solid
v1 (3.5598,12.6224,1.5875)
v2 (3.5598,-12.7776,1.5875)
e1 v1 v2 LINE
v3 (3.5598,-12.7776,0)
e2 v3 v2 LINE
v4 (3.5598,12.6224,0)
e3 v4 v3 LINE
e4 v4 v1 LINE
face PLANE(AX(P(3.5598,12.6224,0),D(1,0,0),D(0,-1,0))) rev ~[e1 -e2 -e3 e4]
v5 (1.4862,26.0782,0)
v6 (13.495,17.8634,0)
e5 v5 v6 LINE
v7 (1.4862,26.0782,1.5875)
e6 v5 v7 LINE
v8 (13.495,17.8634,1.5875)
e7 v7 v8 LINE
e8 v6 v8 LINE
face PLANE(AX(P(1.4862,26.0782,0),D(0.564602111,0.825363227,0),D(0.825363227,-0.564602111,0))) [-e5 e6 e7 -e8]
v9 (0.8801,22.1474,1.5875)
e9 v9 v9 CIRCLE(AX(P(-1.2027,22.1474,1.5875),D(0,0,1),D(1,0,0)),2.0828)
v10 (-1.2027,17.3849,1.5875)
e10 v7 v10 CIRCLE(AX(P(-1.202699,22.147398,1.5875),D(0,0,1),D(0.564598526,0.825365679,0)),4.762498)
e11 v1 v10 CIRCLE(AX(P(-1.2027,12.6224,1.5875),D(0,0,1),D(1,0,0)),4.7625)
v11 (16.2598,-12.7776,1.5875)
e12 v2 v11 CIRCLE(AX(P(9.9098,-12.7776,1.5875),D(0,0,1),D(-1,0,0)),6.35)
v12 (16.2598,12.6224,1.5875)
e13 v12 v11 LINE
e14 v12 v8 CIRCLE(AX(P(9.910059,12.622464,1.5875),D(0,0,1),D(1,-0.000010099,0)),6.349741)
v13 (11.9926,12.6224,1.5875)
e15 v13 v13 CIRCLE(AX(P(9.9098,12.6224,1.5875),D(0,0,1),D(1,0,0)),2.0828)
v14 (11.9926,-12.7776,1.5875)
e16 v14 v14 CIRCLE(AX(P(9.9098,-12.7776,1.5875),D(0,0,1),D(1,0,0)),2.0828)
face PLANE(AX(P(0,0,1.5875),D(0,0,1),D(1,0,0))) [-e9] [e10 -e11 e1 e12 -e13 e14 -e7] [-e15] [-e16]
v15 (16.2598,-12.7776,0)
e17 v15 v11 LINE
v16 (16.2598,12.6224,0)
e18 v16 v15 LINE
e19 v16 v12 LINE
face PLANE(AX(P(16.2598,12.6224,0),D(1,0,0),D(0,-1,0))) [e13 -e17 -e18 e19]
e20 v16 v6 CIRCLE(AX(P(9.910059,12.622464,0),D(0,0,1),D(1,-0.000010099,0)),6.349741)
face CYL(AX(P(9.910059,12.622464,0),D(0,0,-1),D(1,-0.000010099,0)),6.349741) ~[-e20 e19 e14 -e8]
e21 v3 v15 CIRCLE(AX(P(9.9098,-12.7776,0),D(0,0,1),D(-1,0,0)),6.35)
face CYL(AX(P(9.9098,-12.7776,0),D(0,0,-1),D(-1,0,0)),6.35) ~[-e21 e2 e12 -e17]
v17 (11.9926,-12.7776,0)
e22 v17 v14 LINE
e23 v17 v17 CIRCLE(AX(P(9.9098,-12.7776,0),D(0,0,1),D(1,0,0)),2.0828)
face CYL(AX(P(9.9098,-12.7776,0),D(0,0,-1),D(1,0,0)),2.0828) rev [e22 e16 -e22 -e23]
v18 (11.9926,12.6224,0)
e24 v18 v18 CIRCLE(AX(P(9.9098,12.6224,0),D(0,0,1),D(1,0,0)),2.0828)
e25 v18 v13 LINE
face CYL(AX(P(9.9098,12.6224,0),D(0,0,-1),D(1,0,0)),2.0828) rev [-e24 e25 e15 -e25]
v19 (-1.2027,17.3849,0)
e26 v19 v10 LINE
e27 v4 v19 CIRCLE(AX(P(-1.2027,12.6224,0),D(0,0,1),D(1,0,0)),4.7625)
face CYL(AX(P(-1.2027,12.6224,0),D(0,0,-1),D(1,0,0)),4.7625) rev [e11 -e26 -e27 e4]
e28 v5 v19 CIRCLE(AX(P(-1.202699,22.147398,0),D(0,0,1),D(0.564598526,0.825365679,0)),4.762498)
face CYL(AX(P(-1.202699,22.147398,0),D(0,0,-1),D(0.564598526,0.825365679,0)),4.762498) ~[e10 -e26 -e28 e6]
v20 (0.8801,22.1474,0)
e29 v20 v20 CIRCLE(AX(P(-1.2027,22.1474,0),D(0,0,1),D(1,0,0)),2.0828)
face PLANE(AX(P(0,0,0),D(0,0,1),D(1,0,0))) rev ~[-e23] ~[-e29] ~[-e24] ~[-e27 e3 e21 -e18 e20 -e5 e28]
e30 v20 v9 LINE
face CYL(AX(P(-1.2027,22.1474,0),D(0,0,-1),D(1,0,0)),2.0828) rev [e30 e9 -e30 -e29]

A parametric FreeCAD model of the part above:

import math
import FreeCAD as App
import Part
import Sketcher
Q = App.Units.Quantity

doc = App.newDocument("Part")
body = doc.addObject("PartDesign::Body", "Body")

# Sketch on XY plane
sketch1 = doc.addObject("Sketcher::SketchObject", "Sketch")
body.addObject(sketch1)
sketch1.AttachmentSupport = (doc.XY_Plane, [""])
sketch1.MapMode = "FlatFace"
sketch1.addGeometry(Part.LineSegment(App.Vector(16.3, -12.8, 0), App.Vector(16.3, 12.6, 0)), False)
sketch1.addGeometry(Part.ArcOfCircle(Part.Circle(App.Vector(9.9, 12.6, 0), App.Vector(0, 0, 1), 6.3), math.radians(0), math.radians(56)), False)
sketch1.addGeometry(Part.LineSegment(App.Vector(13.5, 17.9, 0), App.Vector(1.5, 26.1, 0)), False)
sketch1.addGeometry(Part.ArcOfCircle(Part.Circle(App.Vector(-1.2, 22.1, 0), App.Vector(0, 0, 1), 4.8), math.radians(56), math.radians(270)), False)
sketch1.addGeometry(Part.ArcOfCircle(Part.Circle(App.Vector(-1.2, 12.6, 0), App.Vector(0, 0, 1), 4.8), math.radians(0), math.radians(90)), False)
sketch1.addGeometry(Part.LineSegment(App.Vector(3.6, 12.6, 0), App.Vector(3.6, -12.8, 0)), False)
sketch1.addGeometry(Part.ArcOfCircle(Part.Circle(App.Vector(9.9, -12.8, 0), App.Vector(0, 0, 1), 6.4), math.radians(180), math.radians(360)), False)
sketch1.addGeometry(Part.Circle(App.Vector(9.9, -12.8, 0), App.Vector(0, 0, 1), 2.1), False)
sketch1.addGeometry(Part.Circle(App.Vector(-1.2, 22.1, 0), App.Vector(0, 0, 1), 2.1), False)
sketch1.addGeometry(Part.Circle(App.Vector(9.9, 12.6, 0), App.Vector(0, 0, 1), 2.1), False)
sketch1.addConstraint(Sketcher.Constraint("Tangent", 0, 2, 1, 1))
sketch1.addConstraint(Sketcher.Constraint("Tangent", 1, 2, 2, 1))
sketch1.addConstraint(Sketcher.Constraint("Tangent", 2, 2, 3, 1))
sketch1.addConstraint(Sketcher.Constraint("Tangent", 3, 2, 4, 2))
sketch1.addConstraint(Sketcher.Constraint("Tangent", 4, 1, 5, 1))
sketch1.addConstraint(Sketcher.Constraint("Tangent", 5, 2, 6, 1))
sketch1.addConstraint(Sketcher.Constraint("Tangent", 6, 2, 0, 1))
sketch1.addConstraint(Sketcher.Constraint("Vertical", 0))
sketch1.addConstraint(Sketcher.Constraint("Vertical", 5))
sketch1.addConstraint(Sketcher.Constraint("Coincident", 7, 3, 6, 3))
sketch1.addConstraint(Sketcher.Constraint("Coincident", 8, 3, 3, 3))
sketch1.addConstraint(Sketcher.Constraint("Coincident", 9, 3, 1, 3))
sketch1.addConstraint(Sketcher.Constraint("Equal", 3, 4))
sketch1.addConstraint(Sketcher.Constraint("Equal", 1, 6))
sketch1.addConstraint(Sketcher.Constraint("Equal", 7, 8))
sketch1.addConstraint(Sketcher.Constraint("Equal", 8, 9))
sketch1.addConstraint(Sketcher.Constraint("Horizontal", 1, 3, 4, 3))
sketch1.addConstraint(Sketcher.Constraint("Vertical", 3, 3, 4, 3))
sketch1.addConstraint(Sketcher.Constraint("Radius", 1, Q("0.25 in")))
sketch1.addConstraint(Sketcher.Constraint("Diameter", 7, Q("0.164 in")))
sketch1.addConstraint(Sketcher.Constraint("Radius", 3, Q("0.1875 in")))
sketch1.addConstraint(Sketcher.Constraint("DistanceY", 0, 1, 0, 2, Q("1 in")))
sketch1.addConstraint(Sketcher.Constraint("DistanceX", -1, 1, 1, 2, Q("0.5313 in")))
sketch1.addConstraint(Sketcher.Constraint("DistanceY", -1, 1, 2, 2, Q("1.0267 in")))
pad1 = doc.addObject("PartDesign::Pad", "Pad")
body.addObject(pad1)
pad1.Profile = sketch1
pad1.Length = Q("0.0625 in")

doc.recompute()
